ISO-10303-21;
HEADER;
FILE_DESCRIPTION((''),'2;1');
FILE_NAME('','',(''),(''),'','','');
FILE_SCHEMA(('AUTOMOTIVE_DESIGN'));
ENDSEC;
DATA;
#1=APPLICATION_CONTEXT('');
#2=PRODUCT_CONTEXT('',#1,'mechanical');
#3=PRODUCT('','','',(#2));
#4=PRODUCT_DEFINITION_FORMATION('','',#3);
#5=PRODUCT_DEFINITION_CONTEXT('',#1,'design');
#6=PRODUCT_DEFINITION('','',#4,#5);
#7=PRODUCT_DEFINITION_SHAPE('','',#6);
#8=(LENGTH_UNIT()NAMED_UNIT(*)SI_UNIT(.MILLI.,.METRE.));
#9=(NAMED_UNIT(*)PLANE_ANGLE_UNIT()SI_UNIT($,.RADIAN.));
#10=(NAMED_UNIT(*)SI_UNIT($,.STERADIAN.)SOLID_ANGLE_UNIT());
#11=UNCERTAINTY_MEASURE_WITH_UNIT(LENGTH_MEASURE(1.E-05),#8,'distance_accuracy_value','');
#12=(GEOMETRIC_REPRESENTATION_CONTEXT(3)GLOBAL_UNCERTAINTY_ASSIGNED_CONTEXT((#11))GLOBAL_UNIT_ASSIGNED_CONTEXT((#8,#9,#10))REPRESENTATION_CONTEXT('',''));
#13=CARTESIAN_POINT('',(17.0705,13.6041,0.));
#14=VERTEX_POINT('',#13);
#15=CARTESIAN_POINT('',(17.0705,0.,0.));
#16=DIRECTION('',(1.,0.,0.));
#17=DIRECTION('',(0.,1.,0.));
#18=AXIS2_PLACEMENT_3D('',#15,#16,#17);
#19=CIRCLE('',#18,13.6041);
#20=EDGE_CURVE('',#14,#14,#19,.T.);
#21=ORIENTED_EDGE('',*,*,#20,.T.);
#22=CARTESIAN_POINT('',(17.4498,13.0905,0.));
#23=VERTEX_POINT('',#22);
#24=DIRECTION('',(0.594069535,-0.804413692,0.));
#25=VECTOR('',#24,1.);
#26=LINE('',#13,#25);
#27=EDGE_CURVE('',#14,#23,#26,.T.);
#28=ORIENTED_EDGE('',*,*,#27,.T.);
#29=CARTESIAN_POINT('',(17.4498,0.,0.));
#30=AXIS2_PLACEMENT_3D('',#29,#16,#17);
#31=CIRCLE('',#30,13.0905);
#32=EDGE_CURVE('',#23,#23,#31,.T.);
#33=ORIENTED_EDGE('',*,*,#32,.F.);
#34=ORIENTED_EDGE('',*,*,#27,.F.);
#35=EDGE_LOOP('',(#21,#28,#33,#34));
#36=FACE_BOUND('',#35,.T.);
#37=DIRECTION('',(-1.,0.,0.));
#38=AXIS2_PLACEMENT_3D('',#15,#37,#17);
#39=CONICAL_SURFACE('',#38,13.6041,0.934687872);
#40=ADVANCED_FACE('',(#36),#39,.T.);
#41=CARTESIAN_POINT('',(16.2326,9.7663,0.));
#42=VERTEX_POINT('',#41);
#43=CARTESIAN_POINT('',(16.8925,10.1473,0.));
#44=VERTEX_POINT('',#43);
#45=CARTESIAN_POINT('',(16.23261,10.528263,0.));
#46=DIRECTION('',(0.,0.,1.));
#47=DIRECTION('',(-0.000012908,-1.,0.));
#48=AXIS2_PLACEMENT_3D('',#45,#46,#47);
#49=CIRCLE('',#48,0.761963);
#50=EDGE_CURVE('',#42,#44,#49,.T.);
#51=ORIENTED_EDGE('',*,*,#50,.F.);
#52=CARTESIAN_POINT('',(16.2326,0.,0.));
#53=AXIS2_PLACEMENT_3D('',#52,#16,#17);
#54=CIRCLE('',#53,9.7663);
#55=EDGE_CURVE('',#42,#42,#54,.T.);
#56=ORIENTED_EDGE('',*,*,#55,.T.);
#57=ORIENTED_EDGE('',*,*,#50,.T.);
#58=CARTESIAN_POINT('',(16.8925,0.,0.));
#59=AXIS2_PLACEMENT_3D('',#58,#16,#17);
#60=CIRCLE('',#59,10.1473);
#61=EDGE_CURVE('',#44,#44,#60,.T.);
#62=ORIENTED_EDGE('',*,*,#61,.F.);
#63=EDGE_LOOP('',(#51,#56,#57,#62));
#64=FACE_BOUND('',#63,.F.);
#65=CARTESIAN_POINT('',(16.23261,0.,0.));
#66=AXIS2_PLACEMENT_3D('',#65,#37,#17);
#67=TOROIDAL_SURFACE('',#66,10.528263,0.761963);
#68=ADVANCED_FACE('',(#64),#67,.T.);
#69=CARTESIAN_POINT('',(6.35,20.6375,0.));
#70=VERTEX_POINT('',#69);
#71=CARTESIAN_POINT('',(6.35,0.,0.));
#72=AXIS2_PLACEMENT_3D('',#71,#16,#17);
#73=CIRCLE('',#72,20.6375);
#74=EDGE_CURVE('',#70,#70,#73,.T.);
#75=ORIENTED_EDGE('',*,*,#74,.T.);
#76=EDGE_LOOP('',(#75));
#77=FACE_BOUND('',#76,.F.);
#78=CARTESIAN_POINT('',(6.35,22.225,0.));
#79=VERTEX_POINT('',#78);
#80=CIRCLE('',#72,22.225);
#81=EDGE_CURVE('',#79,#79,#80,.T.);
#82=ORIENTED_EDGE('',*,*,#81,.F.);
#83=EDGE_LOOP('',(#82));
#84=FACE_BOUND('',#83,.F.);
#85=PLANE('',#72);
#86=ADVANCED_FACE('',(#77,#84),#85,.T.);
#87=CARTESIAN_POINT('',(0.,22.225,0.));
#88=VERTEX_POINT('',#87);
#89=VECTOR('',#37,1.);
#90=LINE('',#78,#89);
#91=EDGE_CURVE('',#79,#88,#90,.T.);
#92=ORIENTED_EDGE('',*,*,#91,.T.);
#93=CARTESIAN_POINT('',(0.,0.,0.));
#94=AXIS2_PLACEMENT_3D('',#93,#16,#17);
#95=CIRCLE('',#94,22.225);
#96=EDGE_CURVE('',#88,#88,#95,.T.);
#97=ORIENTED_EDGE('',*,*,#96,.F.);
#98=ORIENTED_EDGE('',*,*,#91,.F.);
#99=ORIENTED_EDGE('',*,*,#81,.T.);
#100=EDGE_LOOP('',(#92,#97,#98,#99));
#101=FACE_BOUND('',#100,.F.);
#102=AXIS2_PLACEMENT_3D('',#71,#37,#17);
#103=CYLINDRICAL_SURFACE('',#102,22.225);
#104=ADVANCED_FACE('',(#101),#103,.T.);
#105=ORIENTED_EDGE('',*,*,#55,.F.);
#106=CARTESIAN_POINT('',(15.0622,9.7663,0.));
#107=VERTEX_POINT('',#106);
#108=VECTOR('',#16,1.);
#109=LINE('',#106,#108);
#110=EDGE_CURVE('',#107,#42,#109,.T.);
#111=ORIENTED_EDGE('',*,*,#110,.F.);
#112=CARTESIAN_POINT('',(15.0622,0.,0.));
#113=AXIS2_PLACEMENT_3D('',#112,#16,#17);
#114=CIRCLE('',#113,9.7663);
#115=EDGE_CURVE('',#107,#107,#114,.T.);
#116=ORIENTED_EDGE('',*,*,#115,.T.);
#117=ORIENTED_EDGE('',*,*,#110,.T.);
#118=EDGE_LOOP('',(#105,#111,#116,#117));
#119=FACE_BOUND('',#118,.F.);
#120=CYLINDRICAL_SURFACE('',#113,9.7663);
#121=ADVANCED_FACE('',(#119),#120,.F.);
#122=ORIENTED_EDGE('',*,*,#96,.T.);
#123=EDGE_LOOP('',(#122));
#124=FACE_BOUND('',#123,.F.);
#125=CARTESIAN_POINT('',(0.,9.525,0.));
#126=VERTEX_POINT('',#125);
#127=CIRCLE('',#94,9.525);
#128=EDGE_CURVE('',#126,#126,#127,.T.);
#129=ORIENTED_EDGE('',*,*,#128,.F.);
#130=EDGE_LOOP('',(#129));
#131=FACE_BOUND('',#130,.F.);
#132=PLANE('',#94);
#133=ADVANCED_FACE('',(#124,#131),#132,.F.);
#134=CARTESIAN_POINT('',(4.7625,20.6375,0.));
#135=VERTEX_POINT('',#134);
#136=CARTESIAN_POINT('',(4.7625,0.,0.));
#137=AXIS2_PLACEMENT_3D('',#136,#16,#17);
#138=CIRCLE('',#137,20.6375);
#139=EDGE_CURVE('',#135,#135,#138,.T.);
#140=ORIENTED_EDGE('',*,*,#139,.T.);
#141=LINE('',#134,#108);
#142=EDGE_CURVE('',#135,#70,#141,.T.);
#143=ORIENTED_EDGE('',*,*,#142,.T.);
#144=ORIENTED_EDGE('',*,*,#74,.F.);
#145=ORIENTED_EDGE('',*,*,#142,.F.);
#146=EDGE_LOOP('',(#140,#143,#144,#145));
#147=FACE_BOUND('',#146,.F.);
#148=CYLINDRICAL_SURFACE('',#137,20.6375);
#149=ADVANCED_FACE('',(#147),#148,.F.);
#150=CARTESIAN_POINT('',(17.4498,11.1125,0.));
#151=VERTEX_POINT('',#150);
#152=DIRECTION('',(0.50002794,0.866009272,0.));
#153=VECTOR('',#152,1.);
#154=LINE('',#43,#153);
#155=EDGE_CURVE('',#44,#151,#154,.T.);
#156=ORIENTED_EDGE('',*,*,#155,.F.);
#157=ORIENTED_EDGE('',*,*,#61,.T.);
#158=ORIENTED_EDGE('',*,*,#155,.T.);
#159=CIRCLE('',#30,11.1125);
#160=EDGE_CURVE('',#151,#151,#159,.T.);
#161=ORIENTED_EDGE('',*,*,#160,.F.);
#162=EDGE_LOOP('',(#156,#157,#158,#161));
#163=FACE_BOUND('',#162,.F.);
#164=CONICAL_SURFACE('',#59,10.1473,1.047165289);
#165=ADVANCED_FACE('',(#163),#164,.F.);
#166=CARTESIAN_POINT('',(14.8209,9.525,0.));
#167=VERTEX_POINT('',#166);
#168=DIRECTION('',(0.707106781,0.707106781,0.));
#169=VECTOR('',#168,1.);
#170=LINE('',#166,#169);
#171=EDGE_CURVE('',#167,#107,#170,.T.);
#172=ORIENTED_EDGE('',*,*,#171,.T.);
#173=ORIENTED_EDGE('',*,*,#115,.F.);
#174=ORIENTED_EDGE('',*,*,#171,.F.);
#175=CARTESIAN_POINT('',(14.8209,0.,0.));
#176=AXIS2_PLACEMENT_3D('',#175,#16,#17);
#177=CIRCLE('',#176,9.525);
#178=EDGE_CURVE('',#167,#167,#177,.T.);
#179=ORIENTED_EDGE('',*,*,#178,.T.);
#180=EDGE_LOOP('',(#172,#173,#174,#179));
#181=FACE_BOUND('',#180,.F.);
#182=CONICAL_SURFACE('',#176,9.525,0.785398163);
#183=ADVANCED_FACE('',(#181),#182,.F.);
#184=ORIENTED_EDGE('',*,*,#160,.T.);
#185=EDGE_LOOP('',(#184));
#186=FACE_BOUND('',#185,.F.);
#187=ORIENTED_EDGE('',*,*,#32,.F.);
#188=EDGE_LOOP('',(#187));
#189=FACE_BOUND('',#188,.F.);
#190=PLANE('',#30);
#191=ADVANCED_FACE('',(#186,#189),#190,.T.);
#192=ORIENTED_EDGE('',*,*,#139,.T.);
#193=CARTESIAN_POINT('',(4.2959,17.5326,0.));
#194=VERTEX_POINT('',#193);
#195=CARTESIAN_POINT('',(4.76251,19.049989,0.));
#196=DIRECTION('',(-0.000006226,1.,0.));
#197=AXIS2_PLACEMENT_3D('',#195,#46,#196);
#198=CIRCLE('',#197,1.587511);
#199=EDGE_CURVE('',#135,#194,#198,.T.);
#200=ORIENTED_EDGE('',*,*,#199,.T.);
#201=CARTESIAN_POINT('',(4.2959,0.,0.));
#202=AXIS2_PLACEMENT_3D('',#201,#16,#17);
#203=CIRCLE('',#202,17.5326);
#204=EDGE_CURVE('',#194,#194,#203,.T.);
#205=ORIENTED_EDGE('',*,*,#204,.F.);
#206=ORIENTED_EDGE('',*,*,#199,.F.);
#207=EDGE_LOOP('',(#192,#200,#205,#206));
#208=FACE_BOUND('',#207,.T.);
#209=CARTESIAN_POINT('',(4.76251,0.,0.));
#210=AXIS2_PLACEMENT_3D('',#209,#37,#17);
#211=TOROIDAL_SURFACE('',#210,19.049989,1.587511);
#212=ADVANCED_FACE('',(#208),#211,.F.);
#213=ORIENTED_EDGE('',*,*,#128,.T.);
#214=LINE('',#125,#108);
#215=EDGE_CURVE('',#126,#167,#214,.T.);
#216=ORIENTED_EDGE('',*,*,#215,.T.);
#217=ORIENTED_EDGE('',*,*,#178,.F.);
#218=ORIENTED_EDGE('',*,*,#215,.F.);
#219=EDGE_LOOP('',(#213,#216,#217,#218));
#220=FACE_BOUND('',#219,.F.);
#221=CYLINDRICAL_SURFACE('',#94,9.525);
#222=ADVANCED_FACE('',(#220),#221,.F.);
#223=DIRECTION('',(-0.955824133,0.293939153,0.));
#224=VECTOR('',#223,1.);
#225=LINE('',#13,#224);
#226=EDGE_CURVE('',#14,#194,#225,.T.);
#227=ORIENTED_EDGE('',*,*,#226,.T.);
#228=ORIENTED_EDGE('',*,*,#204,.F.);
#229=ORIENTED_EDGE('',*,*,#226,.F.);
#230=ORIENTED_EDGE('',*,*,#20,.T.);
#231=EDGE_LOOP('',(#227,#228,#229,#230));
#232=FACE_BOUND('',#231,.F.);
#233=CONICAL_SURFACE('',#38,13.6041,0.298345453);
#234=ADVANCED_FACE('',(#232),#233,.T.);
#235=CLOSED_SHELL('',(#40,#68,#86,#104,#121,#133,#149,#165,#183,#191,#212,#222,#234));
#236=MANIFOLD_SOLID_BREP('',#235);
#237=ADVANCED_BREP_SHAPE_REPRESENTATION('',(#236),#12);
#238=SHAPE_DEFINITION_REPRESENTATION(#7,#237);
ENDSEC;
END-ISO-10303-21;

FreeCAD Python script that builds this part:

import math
import FreeCAD as App
import Part
import Sketcher

V = App.Vector
Q = App.Units.Quantity

doc = App.newDocument("Part")
body = doc.addObject("PartDesign::Body", "Body")

sketch1 = body.newObject("Sketcher::SketchObject", "Sketch")
sketch1.AttachmentSupport = (doc.getObject("XY_Plane"), [""])
sketch1.MapMode = "FlatFace"
sketch1.addGeometry(Part.LineSegment(V(6.35, 22.225, 0), V(0, 22.225, 0)), False)
sketch1.addGeometry(Part.LineSegment(V(0, 22.225, 0), V(0, 9.525, 0)), False)
sketch1.addGeometry(Part.LineSegment(V(0, 9.525, 0), V(14.8209, 9.525, 0)), False)
sketch1.addGeometry(Part.LineSegment(V(14.8209, 9.525, 0), V(15.0622, 9.7663, 0)), False)
sketch1.addGeometry(Part.LineSegment(V(15.0622, 9.7663, 0), V(16.2326, 9.7663, 0)), False)
sketch1.addGeometry(Part.ArcOfCircle(Part.Circle(V(16.2326, 10.5283, 0), V(0, 0, 1), 0.762), math.radians(-90), math.radians(-30.000427)), False)
sketch1.addGeometry(Part.LineSegment(V(16.8925, 10.1473, 0), V(17.4498, 11.1125, 0)), False)
sketch1.addGeometry(Part.LineSegment(V(17.4498, 11.1125, 0), V(17.4498, 13.0905, 0)), False)
sketch1.addGeometry(Part.LineSegment(V(17.4498, 13.0905, 0), V(17.0705, 13.6041, 0)), False)
sketch1.addGeometry(Part.LineSegment(V(17.0705, 13.6041, 0), V(4.2959, 17.5326, 0)), False)
sketch1.addGeometry(Part.ArcOfCircle(Part.Circle(V(4.7625, 19.05, 0), V(0, 0, 1), 1.5875), math.radians(90), math.radians(252.907354)), False)
sketch1.addGeometry(Part.LineSegment(V(4.7625, 20.6375, 0), V(6.35, 20.6375, 0)), False)
sketch1.addGeometry(Part.LineSegment(V(6.35, 20.6375, 0), V(6.35, 22.225, 0)), False)
sketch1.addConstraint(Sketcher.Constraint("Coincident", 0, 2, 1, 1))
sketch1.addConstraint(Sketcher.Constraint("Coincident", 1, 2, 2, 1))
sketch1.addConstraint(Sketcher.Constraint("Coincident", 2, 2, 3, 1))
sketch1.addConstraint(Sketcher.Constraint("Coincident", 3, 2, 4, 1))
sketch1.addConstraint(Sketcher.Constraint("Tangent", 4, 2, 5, 1))
sketch1.addConstraint(Sketcher.Constraint("Tangent", 5, 2, 6, 1))
sketch1.addConstraint(Sketcher.Constraint("Coincident", 6, 2, 7, 1))
sketch1.addConstraint(Sketcher.Constraint("Coincident", 7, 2, 8, 1))
sketch1.addConstraint(Sketcher.Constraint("Coincident", 8, 2, 9, 1))
sketch1.addConstraint(Sketcher.Constraint("Tangent", 9, 2, 10, 2))
sketch1.addConstraint(Sketcher.Constraint("Tangent", 10, 1, 11, 1))
sketch1.addConstraint(Sketcher.Constraint("Coincident", 11, 2, 12, 1))
sketch1.addConstraint(Sketcher.Constraint("Coincident", 12, 2, 0, 1))
sketch1.addConstraint(Sketcher.Constraint("Horizontal", 0))
sketch1.addConstraint(Sketcher.Constraint("Vertical", 1))
sketch1.addConstraint(Sketcher.Constraint("Horizontal", 2))
sketch1.addConstraint(Sketcher.Constraint("Horizontal", 4))
sketch1.addConstraint(Sketcher.Constraint("Vertical", 7))
sketch1.addConstraint(Sketcher.Constraint("Horizontal", 11))
sketch1.addConstraint(Sketcher.Constraint("Vertical", 12))
sketch1.addConstraint(Sketcher.Constraint("PointOnObject", 0, 2, -2))
sketch1.addConstraint(Sketcher.Constraint("Equal", 11, 12))
sketch1.addConstraint(Sketcher.Constraint("Radius", 5, Q("0.03 in")))
sketch1.addConstraint(Sketcher.Constraint("Angle", 3, Q("45 deg")))
sketch1.addConstraint(Sketcher.Constraint("Radius", 10, Q("0.0625 in")))
sketch1.addConstraint(Sketcher.Constraint("DistanceX", 0, 2, 0, 1, Q("0.25 in")))
sketch1.addConstraint(Sketcher.Constraint("DistanceX", 11, 1, 11, 2, Q("0.0625 in")))
sketch1.addConstraint(Sketcher.Constraint("DistanceY", 1, 2, 1, 1, Q("0.5 in")))
sketch1.addConstraint(Sketcher.Constraint("DistanceY", -1, 1, 0, 2, Q("0.875 in")))
sketch1.addConstraint(Sketcher.Constraint("DistanceX", -1, 1, 6, 2, Q("0.687 in")))
sketch1.addConstraint(Sketcher.Constraint("DistanceY", -1, 1, 6, 2, Q("0.4375 in")))
sketch1.addConstraint(Sketcher.Constraint("DistanceX", 3, 2, 6, 2, Q("0.094 in")))
sketch1.addConstraint(Sketcher.Constraint("DistanceY", -1, 1, 3, 2, Q("0.3845 in")))
sketch1.addConstraint(Sketcher.Constraint("DistanceY", 4, 2, 5, 2, Q("0.015 in")))
sketch1.addConstraint(Sketcher.Constraint("DistanceX", 5, 3, 8, 2, Q("0.033 in")))
sketch1.addConstraint(Sketcher.Constraint("DistanceY", 7, 1, 7, 2, 1.978))
sketch1.addConstraint(Sketcher.Constraint("DistanceY", -1, 1, 8, 2, Q("0.5356 in")))
revolution = body.newObject("PartDesign::Revolution", "Revolution")
revolution.Profile = sketch1
revolution.ReferenceAxis = (sketch1, ["H_Axis"])
revolution.Angle = 360

doc.recompute()
